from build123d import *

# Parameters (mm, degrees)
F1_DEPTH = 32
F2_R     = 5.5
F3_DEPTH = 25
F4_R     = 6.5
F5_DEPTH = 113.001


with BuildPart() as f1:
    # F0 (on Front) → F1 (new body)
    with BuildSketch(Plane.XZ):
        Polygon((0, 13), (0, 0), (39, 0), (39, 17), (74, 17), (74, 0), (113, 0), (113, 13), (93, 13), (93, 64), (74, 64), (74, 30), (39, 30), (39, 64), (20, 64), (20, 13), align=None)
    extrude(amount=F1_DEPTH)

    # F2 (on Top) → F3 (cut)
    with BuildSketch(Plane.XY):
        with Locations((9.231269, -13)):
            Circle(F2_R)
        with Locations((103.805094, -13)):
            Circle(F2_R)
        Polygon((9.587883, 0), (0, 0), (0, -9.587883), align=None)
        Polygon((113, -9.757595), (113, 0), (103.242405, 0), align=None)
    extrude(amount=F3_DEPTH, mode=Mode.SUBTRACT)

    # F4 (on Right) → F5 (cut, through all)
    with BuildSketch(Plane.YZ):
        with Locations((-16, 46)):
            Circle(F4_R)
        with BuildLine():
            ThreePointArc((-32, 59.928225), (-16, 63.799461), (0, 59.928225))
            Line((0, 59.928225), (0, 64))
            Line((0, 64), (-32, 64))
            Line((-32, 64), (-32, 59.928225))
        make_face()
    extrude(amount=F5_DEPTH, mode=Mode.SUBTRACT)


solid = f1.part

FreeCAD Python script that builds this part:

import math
import FreeCAD as App
import Part
import Sketcher
from FreeCAD import Vector


def add_polygon(sketch, points):
    """Adds a closed chain of lines whose ends are joined by coincident constraints."""
    first, n = sketch.GeometryCount, len(points)
    for a, b in zip(points, points[1:] + points[:1]):
        sketch.addGeometry(Part.LineSegment(App.Vector(*a, 0), App.Vector(*b, 0)), False)
    for i in range(n):
        sketch.addConstraint(Sketcher.Constraint("Coincident", first + i, 2, first + (i + 1) % n, 1))

doc = App.newDocument("Part")
body = doc.addObject("PartDesign::Body", "Body")

sketch1 = doc.addObject("Sketcher::SketchObject", "Sketch")
body.addObject(sketch1)
sketch1.AttachmentSupport = (doc.XZ_Plane, [""])
sketch1.MapMode = "FlatFace"
add_polygon(sketch1, [(0, 13), (0, 0), (39, 0), (39, 17), (74, 17), (74, 0), (113, 0), (113, 13), (93, 13), (93, 64), (74, 64), (74, 30), (39, 30), (39, 64), (20, 64), (20, 13)])
sketch1.addConstraint([
    Sketcher.Constraint("Vertical", 0),
    Sketcher.Constraint("Horizontal", 1),
    Sketcher.Constraint("Vertical", 2),
    Sketcher.Constraint("Horizontal", 3),
    Sketcher.Constraint("Vertical", 4),
    Sketcher.Constraint("Horizontal", 5),
    Sketcher.Constraint("Vertical", 6),
    Sketcher.Constraint("Horizontal", 7),
    Sketcher.Constraint("Vertical", 8),
    Sketcher.Constraint("Horizontal", 9),
    Sketcher.Constraint("Vertical", 10),
    Sketcher.Constraint("Horizontal", 11),
    Sketcher.Constraint("Vertical", 12),
    Sketcher.Constraint("Horizontal", 13),
    Sketcher.Constraint("Vertical", 14),
    Sketcher.Constraint("Horizontal", 15),
    Sketcher.Constraint("Coincident", 0, 2, -1, 1),
    Sketcher.Constraint("PointOnObject", 4, 2, -1),
    Sketcher.Constraint("Horizontal", 9, 2, 12, 2),
    Sketcher.Constraint("Horizontal", 7, 2, 14, 2),
    Sketcher.Constraint("Vertical", 4, 2, 9, 2),
    Sketcher.Constraint("Vertical", 2, 2, 11, 2),
    Sketcher.Constraint("Equal", 1, 5),
    Sketcher.Constraint("Equal", 9, 13),
    Sketcher.Constraint("DistanceX", 1, 1, 1, 2, 39.0),
    Sketcher.Constraint("DistanceX", 3, 1, 3, 2, 35.0),
    Sketcher.Constraint("DistanceX", 7, 2, 7, 1, 20.0),
    Sketcher.Constraint("DistanceY", 0, 2, 0, 1, 13.0),
    Sketcher.Constraint("DistanceY", 2, 1, 2, 2, 17.0),
    Sketcher.Constraint("DistanceY", 8, 1, 8, 2, 51.0),
    Sketcher.Constraint("DistanceY", 10, 2, 10, 1, 34.0),
])
pad1 = doc.addObject("PartDesign::Pad", "Pad")
body.addObject(pad1)
pad1.Profile = sketch1
pad1.Length = 32

sketch2 = doc.addObject("Sketcher::SketchObject", "Sketch001")
body.addObject(sketch2)
sketch2.AttachmentSupport = (doc.XY_Plane, [""])
sketch2.MapMode = "FlatFace"
sketch2.addGeometry(Part.Circle(Vector(9, -13, 0), Vector(0, 0, 1), 6), False)
sketch2.addGeometry(Part.Circle(Vector(104, -13, 0), Vector(0, 0, 1), 6), False)
add_polygon(sketch2, [(10, 0), (0, 0), (0, -10)])
add_polygon(sketch2, [(113, -10), (113, 0), (103, 0)])
sketch2.addConstraint([
    Sketcher.Constraint("Horizontal", 2),
    Sketcher.Constraint("Vertical", 3),
    Sketcher.Constraint("Vertical", 5),
    Sketcher.Constraint("Horizontal", 6),
    Sketcher.Constraint("Coincident", 2, 2, -1, 1),
    Sketcher.Constraint("Equal", 0, 1),
    Sketcher.Constraint("PointOnObject", 5, 2, -1),
    Sketcher.Constraint("Perpendicular", 4, 7),
    Sketcher.Constraint("Horizontal", 0, 3, 1, 3),
    Sketcher.Constraint("Equal", 2, 3),
    Sketcher.Constraint("Diameter", 0, 11.0),
    Sketcher.Constraint("DistanceY", 0, 3, -1, 1, 13.0),
    Sketcher.Constraint("DistanceX", -1, 1, 5, 2, 113.0),
    Sketcher.Constraint("DistanceX", 2, 2, 2, 1, 9.587883),
    Sketcher.Constraint("DistanceX", 6, 2, 6, 1, 9.757595),
    Sketcher.Constraint("DistanceX", -1, 1, 0, 3, 9.231269),
    Sketcher.Constraint("DistanceX", 4, 2, 1, 3, 94.217211),
])
pocket1 = doc.addObject("PartDesign::Pocket", "Pocket")
body.addObject(pocket1)
pocket1.Profile = sketch2
pocket1.Length = 25
pocket1.Reversed = True

sketch3 = doc.addObject("Sketcher::SketchObject", "Sketch002")
body.addObject(sketch3)
sketch3.AttachmentSupport = (doc.YZ_Plane, [""])
sketch3.MapMode = "FlatFace"
sketch3.addGeometry([
    Part.Circle(Vector(-16, 46, 0), Vector(0, 0, 1), 6.5),
    Part.ArcOfCircle(Part.Circle(Vector(-16, 28.8, 0), Vector(0, 0, 1), 35), math.radians(63), math.radians(117)),
    Part.LineSegment(Vector(0, 59.9, 0), Vector(0, 64, 0)),
    Part.LineSegment(Vector(0, 64, 0), Vector(-32, 64, 0)),
    Part.LineSegment(Vector(-32, 64, 0), Vector(-32, 59.9, 0)),
], False)
sketch3.addConstraint([
    Sketcher.Constraint("Coincident", 1, 1, 2, 1),
    Sketcher.Constraint("Coincident", 2, 2, 3, 1),
    Sketcher.Constraint("Coincident", 3, 2, 4, 1),
    Sketcher.Constraint("Coincident", 4, 2, 1, 2),
    Sketcher.Constraint("Vertical", 2),
    Sketcher.Constraint("Horizontal", 3),
    Sketcher.Constraint("Vertical", 4),
    Sketcher.Constraint("PointOnObject", 1, 1, -2),
    Sketcher.Constraint("Horizontal", 1, 1, 4, 2),
    Sketcher.Constraint("Vertical", 0, 3, 1, 3),
    Sketcher.Constraint("Diameter", 0, 13.0),
    Sketcher.Constraint("DistanceX", 3, 2, 3, 1, 32.0),
    Sketcher.Constraint("DistanceY", -1, 1, 0, 3, 46.0),
    Sketcher.Constraint("DistanceY", -1, 1, 2, 2, 64.0),
    Sketcher.Constraint("Radius", 1, 34.999993),
    Sketcher.Constraint("DistanceY", 2, 1, 2, 2, 4.071775),
])
pocket2 = doc.addObject("PartDesign::Pocket", "Pocket001")
body.addObject(pocket2)
pocket2.Profile = sketch3
pocket2.Type = "ThroughAll"
pocket2.Reversed = True

doc.recompute()
